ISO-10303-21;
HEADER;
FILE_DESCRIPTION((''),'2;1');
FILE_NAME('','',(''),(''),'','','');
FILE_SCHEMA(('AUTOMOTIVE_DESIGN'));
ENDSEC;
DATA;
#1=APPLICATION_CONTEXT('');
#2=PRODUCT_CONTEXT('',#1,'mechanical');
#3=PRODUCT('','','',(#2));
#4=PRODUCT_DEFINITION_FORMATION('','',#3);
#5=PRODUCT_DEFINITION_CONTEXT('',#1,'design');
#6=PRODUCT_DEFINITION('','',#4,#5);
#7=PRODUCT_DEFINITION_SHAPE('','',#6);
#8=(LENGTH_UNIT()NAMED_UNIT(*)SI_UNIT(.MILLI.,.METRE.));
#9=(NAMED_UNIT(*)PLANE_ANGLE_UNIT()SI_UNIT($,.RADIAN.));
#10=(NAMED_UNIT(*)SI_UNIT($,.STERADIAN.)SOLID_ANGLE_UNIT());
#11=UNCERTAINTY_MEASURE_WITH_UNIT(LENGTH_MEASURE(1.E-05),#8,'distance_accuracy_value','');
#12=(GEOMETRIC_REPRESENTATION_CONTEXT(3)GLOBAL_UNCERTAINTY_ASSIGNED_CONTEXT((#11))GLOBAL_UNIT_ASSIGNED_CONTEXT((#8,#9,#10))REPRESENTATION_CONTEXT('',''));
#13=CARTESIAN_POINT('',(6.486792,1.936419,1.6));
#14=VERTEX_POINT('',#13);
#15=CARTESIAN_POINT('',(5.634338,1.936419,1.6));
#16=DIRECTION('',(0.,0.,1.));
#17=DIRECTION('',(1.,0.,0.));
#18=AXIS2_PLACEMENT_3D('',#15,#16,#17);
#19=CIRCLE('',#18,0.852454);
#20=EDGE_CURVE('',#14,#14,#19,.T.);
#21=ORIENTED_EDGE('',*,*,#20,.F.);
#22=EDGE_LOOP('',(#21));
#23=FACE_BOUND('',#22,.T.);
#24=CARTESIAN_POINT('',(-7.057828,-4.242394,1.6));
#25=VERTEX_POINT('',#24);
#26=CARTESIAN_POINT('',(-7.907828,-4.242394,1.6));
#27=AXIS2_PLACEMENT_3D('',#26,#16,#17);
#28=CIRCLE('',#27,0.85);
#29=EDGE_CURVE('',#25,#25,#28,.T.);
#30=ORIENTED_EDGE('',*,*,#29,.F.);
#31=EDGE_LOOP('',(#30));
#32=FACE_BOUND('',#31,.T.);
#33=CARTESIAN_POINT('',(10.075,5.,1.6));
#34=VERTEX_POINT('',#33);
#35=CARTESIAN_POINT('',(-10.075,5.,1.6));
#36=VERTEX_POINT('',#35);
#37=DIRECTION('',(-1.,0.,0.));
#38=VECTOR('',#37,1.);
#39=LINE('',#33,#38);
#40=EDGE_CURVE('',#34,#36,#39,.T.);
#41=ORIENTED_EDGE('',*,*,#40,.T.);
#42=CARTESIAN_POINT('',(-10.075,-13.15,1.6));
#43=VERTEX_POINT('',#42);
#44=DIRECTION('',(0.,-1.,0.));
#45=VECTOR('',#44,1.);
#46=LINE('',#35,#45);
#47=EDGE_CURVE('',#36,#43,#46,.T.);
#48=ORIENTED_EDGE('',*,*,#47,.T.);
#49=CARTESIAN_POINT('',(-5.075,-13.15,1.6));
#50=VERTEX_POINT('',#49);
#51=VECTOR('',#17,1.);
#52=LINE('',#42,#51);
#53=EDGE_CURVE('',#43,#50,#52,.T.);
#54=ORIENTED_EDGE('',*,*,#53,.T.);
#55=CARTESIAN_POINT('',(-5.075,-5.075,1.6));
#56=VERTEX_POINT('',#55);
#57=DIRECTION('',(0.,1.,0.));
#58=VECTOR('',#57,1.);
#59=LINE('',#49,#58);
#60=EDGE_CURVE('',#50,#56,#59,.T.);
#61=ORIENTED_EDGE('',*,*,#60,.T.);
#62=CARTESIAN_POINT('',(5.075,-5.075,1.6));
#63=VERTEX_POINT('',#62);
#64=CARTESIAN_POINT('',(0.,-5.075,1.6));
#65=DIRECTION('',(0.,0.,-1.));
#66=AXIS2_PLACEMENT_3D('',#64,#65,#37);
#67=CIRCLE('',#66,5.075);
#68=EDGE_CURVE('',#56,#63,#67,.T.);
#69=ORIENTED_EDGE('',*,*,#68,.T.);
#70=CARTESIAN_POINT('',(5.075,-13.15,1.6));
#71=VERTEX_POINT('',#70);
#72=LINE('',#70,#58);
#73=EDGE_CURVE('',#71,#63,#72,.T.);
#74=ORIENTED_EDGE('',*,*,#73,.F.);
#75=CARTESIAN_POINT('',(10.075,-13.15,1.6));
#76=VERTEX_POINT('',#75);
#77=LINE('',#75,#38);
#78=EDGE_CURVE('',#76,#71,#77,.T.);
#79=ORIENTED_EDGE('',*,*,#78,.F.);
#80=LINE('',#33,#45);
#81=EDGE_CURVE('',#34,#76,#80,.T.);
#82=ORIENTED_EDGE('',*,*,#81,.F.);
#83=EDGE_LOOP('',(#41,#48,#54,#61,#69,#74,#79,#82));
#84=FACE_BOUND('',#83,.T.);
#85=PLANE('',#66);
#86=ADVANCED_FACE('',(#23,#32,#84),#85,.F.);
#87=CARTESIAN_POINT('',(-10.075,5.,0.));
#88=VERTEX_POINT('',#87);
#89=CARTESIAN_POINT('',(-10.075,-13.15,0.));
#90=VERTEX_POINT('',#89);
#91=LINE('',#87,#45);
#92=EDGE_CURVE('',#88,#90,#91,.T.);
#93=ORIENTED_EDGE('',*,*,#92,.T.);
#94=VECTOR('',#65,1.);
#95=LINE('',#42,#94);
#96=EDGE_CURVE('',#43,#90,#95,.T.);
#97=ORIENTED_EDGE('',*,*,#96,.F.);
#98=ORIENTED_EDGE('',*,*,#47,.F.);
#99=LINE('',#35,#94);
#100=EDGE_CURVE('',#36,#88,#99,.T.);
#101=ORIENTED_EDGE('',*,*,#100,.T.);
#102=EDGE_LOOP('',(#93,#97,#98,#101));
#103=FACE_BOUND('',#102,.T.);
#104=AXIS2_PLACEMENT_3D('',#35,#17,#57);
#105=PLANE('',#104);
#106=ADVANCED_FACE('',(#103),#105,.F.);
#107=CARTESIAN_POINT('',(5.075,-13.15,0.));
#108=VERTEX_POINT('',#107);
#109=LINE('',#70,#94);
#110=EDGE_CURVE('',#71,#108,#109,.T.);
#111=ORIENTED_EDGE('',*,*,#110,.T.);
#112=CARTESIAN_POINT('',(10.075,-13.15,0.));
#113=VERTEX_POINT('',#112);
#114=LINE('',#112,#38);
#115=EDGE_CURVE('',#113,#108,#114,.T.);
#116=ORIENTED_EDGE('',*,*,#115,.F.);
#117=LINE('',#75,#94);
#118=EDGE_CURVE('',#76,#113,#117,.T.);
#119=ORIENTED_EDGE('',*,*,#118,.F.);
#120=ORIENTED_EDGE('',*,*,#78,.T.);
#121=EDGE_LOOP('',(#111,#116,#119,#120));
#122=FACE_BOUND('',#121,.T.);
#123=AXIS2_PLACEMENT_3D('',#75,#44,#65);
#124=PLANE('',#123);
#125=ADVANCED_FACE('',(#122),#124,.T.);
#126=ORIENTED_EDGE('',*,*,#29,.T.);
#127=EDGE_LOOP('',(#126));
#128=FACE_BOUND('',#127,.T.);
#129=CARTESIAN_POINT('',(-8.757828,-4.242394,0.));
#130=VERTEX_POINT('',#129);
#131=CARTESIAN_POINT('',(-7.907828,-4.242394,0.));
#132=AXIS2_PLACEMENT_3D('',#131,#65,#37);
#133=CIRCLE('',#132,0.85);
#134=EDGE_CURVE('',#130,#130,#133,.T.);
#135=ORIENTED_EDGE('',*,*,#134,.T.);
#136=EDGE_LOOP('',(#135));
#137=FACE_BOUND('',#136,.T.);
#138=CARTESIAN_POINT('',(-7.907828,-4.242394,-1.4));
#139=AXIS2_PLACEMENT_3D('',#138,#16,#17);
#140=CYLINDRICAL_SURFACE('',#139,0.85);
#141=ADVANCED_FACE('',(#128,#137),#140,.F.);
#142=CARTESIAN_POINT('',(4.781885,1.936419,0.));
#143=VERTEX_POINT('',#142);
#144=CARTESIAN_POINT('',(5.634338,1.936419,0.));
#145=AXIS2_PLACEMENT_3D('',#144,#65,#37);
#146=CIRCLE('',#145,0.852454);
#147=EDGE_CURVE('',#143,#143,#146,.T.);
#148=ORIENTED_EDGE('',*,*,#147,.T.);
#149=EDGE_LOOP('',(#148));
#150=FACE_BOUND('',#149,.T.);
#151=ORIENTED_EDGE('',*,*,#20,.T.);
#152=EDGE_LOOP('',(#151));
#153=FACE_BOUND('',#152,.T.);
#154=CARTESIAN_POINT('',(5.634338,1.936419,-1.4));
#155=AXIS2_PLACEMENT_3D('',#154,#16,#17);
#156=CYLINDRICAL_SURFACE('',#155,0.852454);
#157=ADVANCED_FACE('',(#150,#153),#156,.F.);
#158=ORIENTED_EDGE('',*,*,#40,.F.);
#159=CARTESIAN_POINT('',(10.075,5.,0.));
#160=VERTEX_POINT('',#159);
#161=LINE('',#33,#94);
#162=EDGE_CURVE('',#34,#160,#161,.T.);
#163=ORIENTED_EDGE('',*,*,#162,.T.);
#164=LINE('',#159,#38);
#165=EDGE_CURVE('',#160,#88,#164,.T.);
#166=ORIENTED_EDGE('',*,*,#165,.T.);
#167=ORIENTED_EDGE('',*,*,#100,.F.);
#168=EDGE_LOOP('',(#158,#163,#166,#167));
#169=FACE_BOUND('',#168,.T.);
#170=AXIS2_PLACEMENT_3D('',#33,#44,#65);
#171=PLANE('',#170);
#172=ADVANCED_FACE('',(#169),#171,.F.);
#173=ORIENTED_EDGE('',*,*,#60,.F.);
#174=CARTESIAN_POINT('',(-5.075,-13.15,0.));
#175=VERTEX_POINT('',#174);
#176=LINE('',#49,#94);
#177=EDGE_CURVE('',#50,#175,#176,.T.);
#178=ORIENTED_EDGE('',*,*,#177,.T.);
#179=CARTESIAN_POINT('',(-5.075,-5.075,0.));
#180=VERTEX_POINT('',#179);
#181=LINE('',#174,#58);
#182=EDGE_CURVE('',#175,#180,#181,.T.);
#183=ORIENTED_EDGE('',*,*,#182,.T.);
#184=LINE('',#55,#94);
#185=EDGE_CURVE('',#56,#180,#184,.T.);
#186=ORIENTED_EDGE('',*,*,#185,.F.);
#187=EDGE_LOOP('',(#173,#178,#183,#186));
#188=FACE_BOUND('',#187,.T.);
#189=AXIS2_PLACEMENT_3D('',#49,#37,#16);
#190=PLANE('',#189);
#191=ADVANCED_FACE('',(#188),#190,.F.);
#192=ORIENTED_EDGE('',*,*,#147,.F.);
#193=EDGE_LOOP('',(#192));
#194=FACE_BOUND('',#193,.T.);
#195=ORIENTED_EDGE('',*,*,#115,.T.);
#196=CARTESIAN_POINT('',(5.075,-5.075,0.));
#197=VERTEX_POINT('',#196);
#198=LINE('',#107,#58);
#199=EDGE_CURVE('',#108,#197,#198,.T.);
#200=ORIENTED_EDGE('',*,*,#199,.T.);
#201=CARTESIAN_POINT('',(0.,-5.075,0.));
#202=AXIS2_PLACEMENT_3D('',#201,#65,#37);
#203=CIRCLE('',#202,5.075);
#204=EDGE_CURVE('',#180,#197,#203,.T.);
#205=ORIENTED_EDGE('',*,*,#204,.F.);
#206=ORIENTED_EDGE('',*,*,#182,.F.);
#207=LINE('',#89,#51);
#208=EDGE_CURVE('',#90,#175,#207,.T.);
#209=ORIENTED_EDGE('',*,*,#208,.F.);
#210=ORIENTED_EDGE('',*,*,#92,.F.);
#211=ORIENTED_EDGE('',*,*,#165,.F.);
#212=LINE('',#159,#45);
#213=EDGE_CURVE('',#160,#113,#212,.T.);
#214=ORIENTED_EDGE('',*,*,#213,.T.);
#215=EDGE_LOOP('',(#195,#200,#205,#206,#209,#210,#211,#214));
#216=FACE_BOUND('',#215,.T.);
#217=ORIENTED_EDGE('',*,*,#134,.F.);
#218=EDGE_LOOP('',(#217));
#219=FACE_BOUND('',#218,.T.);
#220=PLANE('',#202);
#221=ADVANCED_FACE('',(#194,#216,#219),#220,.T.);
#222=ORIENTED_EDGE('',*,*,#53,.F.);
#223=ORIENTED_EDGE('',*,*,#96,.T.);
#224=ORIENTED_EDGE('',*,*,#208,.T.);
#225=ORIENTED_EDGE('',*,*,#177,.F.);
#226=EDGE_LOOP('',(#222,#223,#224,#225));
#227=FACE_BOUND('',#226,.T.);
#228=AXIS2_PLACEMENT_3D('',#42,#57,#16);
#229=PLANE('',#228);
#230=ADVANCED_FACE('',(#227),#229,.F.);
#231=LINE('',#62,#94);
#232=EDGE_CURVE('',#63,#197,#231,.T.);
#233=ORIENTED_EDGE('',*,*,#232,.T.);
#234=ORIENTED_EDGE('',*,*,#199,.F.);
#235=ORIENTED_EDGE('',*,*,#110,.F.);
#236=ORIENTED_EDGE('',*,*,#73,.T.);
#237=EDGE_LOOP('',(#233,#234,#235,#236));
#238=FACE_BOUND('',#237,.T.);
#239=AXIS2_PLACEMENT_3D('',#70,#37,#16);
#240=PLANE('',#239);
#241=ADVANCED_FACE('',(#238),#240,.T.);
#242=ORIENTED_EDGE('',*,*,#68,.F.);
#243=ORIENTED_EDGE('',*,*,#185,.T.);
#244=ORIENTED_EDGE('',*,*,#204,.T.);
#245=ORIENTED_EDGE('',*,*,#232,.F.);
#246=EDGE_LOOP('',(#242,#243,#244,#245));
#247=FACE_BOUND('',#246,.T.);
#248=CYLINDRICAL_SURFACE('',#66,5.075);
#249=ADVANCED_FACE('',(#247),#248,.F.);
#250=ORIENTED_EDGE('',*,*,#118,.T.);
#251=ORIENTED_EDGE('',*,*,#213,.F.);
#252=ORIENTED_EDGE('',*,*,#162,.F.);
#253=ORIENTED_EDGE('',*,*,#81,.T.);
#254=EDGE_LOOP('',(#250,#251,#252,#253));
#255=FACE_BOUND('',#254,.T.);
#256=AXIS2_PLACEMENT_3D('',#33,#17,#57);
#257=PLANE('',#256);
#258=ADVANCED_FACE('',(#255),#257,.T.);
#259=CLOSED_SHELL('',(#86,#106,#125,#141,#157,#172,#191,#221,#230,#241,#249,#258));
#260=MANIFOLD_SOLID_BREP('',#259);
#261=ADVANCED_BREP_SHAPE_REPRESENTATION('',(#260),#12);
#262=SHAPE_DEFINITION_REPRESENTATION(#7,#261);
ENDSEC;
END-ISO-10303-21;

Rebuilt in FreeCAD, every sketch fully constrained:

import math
import FreeCAD as App
import Part
import Sketcher

V = App.Vector
Q = App.Units.Quantity

doc = App.newDocument("Part")
body = doc.addObject("PartDesign::Body", "Body")

# Sketch on XY plane
sketch1 = doc.addObject("Sketcher::SketchObject", "Sketch")
body.addObject(sketch1)
sketch1.AttachmentSupport = (doc.XY_Plane, [""])
sketch1.MapMode = "FlatFace"
sketch1.addGeometry([
    Part.LineSegment(V(10.1, 5, 0), V(-10.1, 5, 0)),  # 0
    Part.LineSegment(V(-10.1, 5, 0), V(-10.1, -13.2, 0)),  # 1
    Part.LineSegment(V(-10.1, -13.2, 0), V(-5.1, -13.2, 0)),  # 2
    Part.LineSegment(V(-5.1, -13.2, 0), V(-5.1, -5.1, 0)),  # 3
    Part.ArcOfCircle(Part.Circle(V(0, -5.1, 0), V(0, 0, 1), 5.1), math.radians(0), math.radians(180)),  # 4
    Part.LineSegment(V(5.1, -5.1, 0), V(5.1, -13.2, 0)),  # 5
    Part.LineSegment(V(5.1, -13.2, 0), V(10.1, -13.2, 0)),  # 6
    Part.LineSegment(V(10.1, -13.2, 0), V(10.1, 5, 0)),  # 7
], False)
sketch1.addConstraint([
    Sketcher.Constraint("Coincident", 0, 2, 1, 1),
    Sketcher.Constraint("Coincident", 1, 2, 2, 1),
    Sketcher.Constraint("Coincident", 2, 2, 3, 1),
    Sketcher.Constraint("Tangent", 3, 2, 4, 2),
    Sketcher.Constraint("Tangent", 4, 1, 5, 1),
    Sketcher.Constraint("Coincident", 5, 2, 6, 1),
    Sketcher.Constraint("Coincident", 6, 2, 7, 1),
    Sketcher.Constraint("Coincident", 7, 2, 0, 1),
    Sketcher.Constraint("Horizontal", 0),
    Sketcher.Constraint("Vertical", 1),
    Sketcher.Constraint("Horizontal", 2),
    Sketcher.Constraint("Vertical", 3),
    Sketcher.Constraint("Vertical", 5),
    Sketcher.Constraint("Horizontal", 6),
    Sketcher.Constraint("Vertical", 7),
    Sketcher.Constraint("Symmetric", 2, 2, 5, 2, -2),
    Sketcher.Constraint("Equal", 2, 6),
    Sketcher.Constraint("DistanceX", 2, 1, 2, 2, Q("5 mm")),
    Sketcher.Constraint("DistanceY", -1, 1, 0, 2, Q("5 mm")),
    Sketcher.Constraint("Radius", 4, Q("5.075 mm")),
    Sketcher.Constraint("DistanceY", 1, 2, 1, 1, Q("18.15 mm")),
    Sketcher.Constraint("DistanceY", 3, 1, 3, 2, Q("8.075 mm")),
])
pad1 = doc.addObject("PartDesign::Pad", "Pad")
body.addObject(pad1)
pad1.Profile = sketch1
pad1.Length = 1.6

# Sketch on XY plane
sketch2 = doc.addObject("Sketcher::SketchObject", "Sketch001")
body.addObject(sketch2)
sketch2.AttachmentSupport = (doc.XY_Plane, [""])
sketch2.MapMode = "FlatFace"
sketch2.AttachmentOffset = App.Placement(V(0, 0, 1.6), App.Rotation())
sketch2.addGeometry([
    Part.Circle(V(5.6, 1.9, 0), V(0, 0, 1), 0.9),
    Part.Circle(V(-7.9, -4.2, 0), V(0, 0, 1), 0.8),
], False)
sketch2.addConstraint([
    Sketcher.Constraint("Diameter", 1, Q("1.7 mm")),
    Sketcher.Constraint("Diameter", 0, Q("1.704908 mm")),
    Sketcher.Constraint("DistanceX", -1, 1, 0, 3, Q("5.634338 mm")),
    Sketcher.Constraint("DistanceY", -1, 1, 0, 3, Q("1.936419 mm")),
    Sketcher.Constraint("DistanceX", 1, 3, -1, 1, Q("7.907828 mm")),
    Sketcher.Constraint("DistanceY", 1, 3, -1, 1, Q("4.242394 mm")),
])
pocket1 = doc.addObject("PartDesign::Pocket", "Pocket")
body.addObject(pocket1)
pocket1.Profile = sketch2
pocket1.Length = 3

doc.recompute()
